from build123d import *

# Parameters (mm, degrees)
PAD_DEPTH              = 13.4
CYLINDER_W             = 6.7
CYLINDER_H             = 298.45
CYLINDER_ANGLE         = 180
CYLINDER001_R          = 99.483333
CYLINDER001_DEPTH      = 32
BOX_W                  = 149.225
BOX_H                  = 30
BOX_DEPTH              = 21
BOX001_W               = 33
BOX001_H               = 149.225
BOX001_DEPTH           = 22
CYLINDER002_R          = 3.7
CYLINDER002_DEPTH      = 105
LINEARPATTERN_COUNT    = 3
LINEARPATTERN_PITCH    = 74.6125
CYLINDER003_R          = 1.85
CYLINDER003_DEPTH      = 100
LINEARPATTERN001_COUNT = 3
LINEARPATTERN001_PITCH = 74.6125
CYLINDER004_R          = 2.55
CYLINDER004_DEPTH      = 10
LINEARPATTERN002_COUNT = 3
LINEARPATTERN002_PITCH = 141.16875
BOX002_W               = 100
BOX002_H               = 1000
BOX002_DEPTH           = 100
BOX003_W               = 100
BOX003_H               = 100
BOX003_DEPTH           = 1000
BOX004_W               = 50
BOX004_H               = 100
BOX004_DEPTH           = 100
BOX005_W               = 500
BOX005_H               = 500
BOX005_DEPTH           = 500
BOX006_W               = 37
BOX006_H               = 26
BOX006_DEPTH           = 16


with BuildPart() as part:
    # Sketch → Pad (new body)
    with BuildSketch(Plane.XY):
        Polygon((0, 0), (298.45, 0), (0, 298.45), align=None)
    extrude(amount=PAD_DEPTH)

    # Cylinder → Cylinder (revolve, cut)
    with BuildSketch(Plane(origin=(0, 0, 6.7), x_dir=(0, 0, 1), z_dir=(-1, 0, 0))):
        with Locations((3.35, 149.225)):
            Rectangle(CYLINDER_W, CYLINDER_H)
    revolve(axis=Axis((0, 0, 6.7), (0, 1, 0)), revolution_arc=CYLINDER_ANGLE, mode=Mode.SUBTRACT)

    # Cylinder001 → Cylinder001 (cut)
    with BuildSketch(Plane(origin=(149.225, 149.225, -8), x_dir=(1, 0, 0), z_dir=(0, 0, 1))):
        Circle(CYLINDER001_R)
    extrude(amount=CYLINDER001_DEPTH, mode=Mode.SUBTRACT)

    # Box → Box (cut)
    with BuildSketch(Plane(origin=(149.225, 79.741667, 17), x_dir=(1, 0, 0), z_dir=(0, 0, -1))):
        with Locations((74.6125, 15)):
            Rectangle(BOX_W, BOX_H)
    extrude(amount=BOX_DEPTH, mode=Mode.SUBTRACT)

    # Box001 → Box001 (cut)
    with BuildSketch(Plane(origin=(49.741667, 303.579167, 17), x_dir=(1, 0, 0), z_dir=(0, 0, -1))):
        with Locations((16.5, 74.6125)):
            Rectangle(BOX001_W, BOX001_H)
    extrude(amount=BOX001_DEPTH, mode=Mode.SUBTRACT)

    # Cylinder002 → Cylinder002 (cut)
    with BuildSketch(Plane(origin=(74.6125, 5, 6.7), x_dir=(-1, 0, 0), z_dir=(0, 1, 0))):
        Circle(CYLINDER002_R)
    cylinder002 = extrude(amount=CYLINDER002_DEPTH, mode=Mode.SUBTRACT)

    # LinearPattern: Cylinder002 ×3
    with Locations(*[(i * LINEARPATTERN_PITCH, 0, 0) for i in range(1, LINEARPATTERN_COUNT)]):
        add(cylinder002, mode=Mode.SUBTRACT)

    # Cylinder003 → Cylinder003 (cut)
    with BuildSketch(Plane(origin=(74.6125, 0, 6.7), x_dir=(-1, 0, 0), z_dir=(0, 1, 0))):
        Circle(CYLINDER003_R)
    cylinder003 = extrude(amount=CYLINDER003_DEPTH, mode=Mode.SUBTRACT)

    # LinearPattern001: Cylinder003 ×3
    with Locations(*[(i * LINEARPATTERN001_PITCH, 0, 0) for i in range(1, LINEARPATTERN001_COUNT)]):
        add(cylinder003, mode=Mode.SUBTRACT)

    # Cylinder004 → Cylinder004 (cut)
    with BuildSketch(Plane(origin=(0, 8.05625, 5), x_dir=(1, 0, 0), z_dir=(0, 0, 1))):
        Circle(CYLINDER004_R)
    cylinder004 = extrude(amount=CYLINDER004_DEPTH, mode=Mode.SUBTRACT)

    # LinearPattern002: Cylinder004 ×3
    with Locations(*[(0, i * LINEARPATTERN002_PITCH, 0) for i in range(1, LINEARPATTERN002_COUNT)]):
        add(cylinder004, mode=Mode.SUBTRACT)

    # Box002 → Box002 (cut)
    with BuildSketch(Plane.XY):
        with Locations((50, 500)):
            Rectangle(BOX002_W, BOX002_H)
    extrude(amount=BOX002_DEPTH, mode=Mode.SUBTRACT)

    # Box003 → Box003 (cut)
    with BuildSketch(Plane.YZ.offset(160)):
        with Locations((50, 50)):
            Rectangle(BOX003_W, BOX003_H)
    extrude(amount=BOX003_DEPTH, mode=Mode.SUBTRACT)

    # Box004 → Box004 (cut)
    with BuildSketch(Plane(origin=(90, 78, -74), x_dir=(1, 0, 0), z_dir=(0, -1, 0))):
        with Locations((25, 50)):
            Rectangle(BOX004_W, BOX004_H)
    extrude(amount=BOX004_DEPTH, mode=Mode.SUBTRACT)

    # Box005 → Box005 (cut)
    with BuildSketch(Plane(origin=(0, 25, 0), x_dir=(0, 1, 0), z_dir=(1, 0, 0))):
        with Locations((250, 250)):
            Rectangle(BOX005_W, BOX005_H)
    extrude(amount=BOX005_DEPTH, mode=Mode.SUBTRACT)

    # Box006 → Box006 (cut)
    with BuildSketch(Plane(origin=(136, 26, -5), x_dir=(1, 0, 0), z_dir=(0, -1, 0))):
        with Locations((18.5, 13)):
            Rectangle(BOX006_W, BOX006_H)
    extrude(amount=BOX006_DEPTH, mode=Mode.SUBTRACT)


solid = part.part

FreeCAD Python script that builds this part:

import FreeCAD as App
import Part
import Sketcher

V = App.Vector

doc = App.newDocument("Part")
params = doc.addObject("Spreadsheet::Sheet", "Params")
for row, (alias, value) in enumerate([
    ("sketch1_width", "298.45 mm"),
    ("pad1_length", "13.4 mm"),
    ("sketch2_height", "6.7 mm"),
    ("sketch2_width", "298.45 mm"),
    ("groove_angle", "180 deg"),
    ("pocket1_length", "32 mm"),
    ("sketch4_height", "30 mm"),
    ("pocket2_length", "21 mm"),
    ("sketch5_width", "33 mm"),
    ("pocket3_length", "22 mm"),
    ("sketch6_diameter", "7.4 mm"),
    ("pocket4_length", "105 mm"),
    ("linearpattern_pitch", "74.6125 mm"),
    ("sketch7_diameter", "3.7 mm"),
    ("pocket5_length", "100 mm"),
    ("linearpattern2_pitch", "74.6125 mm"),
    ("sketch8_diameter", "5.1 mm"),
    ("pocket6_length", "10 mm"),
    ("linearpattern3_pitch", "141.16875 mm"),
    ("sketch9_width", "100 mm"),
    ("sketch9_height", "1000 mm"),
    ("pocket7_length", "100 mm"),
    ("sketch10_width", "100 mm"),
    ("pocket8_length", "1000 mm"),
    ("sketch11_width", "50 mm"),
    ("sketch11_height", "100 mm"),
    ("pocket9_length", "100 mm"),
    ("sketch12_width", "500 mm"),
    ("pocket10_length", "500 mm"),
    ("sketch13_width", "37 mm"),
    ("sketch13_height", "26 mm"),
    ("pocket11_length", "16 mm"),
], start=1):
    params.set(f"A{row}", alias)
    params.set(f"B{row}", "=" + value)
    params.setAlias(f"B{row}", alias)

body = doc.addObject("PartDesign::Body", "Body")

sketch1 = body.newObject("Sketcher::SketchObject", "Sketch")
sketch1.AttachmentSupport = (doc.getObject("XY_Plane"), [""])
sketch1.MapMode = "FlatFace"
sketch1.addGeometry([
    Part.LineSegment(V(0, 0, 0), V(298, 0, 0)),
    Part.LineSegment(V(298, 0, 0), V(0, 298, 0)),
    Part.LineSegment(V(0, 298, 0), V(0, 0, 0)),
], False)
sketch1.addConstraint([
    Sketcher.Constraint("Coincident", 0, 2, 1, 1),
    Sketcher.Constraint("Coincident", 1, 2, 2, 1),
    Sketcher.Constraint("Coincident", 2, 2, 0, 1),
    Sketcher.Constraint("Horizontal", 0),
    Sketcher.Constraint("Vertical", 2),
    Sketcher.Constraint("Coincident", 2, 2, -1, 1),
    Sketcher.Constraint("Equal", 0, 2),
    Sketcher.Constraint("DistanceX", 0, 1, 0, 2, 298.45),
])
sketch1.setExpression("Constraints[7]", "Params.sketch1_width")
pad1 = body.newObject("PartDesign::Pad", "Pad")
pad1.Profile = sketch1
pad1.setExpression("Length", "Params.pad1_length")

sketch2 = body.newObject("Sketcher::SketchObject", "Sketch001")
sketch2.AttachmentSupport = (doc.getObject("YZ_Plane"), [""])
sketch2.MapMode = "FlatFace"
sketch2.addGeometry([
    Part.LineSegment(V(298, 7, 0), V(0, 7, 0)),
    Part.LineSegment(V(0, 7, 0), V(0, 13, 0)),
    Part.LineSegment(V(0, 13, 0), V(298, 13, 0)),
    Part.LineSegment(V(298, 13, 0), V(298, 7, 0)),
], False)
sketch2.addGeometry(Part.LineSegment(V(0, 7, 0), V(298, 7, 0)), True)
sketch2.addConstraint([
    Sketcher.Constraint("Coincident", 0, 2, 1, 1),
    Sketcher.Constraint("Coincident", 1, 2, 2, 1),
    Sketcher.Constraint("Coincident", 2, 2, 3, 1),
    Sketcher.Constraint("Coincident", 3, 2, 0, 1),
    Sketcher.Constraint("Horizontal", 0),
    Sketcher.Constraint("Vertical", 1),
    Sketcher.Constraint("Horizontal", 2),
    Sketcher.Constraint("Vertical", 3),
    Sketcher.Constraint("Horizontal", 4),
    Sketcher.Constraint("Coincident", 4, 1, 0, 2),
    Sketcher.Constraint("PointOnObject", 0, 2, -2),
    Sketcher.Constraint("Vertical", 2, 2, 4, 2),
    Sketcher.Constraint("DistanceY", 1, 1, 1, 2, 6.7),
    Sketcher.Constraint("DistanceX", 0, 2, 0, 1, 298.45),
    Sketcher.Constraint("DistanceY", -1, 1, 0, 2, 6.7),
])
sketch2.setExpression("Constraints[12]", "Params.sketch2_height")
sketch2.setExpression("Constraints[13]", "Params.sketch2_width")
groove = body.newObject("PartDesign::Groove", "Groove")
groove.Profile = sketch2
groove.ReferenceAxis = (sketch2, ["Axis0"])
groove.setExpression("Angle", "Params.groove_angle")

sketch3 = body.newObject("Sketcher::SketchObject", "Sketch002")
sketch3.AttachmentSupport = (doc.getObject("XY_Plane"), [""])
sketch3.MapMode = "FlatFace"
sketch3.AttachmentOffset = App.Placement(V(0, 0, -8), App.Rotation())
sketch3.addGeometry(Part.Circle(V(149, 149, 0), V(0, 0, 1), 99), False)
sketch3.addConstraint([
    Sketcher.Constraint("Diameter", 0, 198.966666),
    Sketcher.Constraint("DistanceX", -1, 1, 0, 3, 149.225),
    Sketcher.Constraint("DistanceY", -1, 1, 0, 3, 149.225),
])
pocket1 = body.newObject("PartDesign::Pocket", "Pocket")
pocket1.Profile = sketch3
pocket1.setExpression("Length", "Params.pocket1_length")
pocket1.Reversed = True

sketch4 = body.newObject("Sketcher::SketchObject", "Sketch003")
sketch4.AttachmentSupport = (doc.getObject("XY_Plane"), [""])
sketch4.MapMode = "FlatFace"
sketch4.AttachmentOffset = App.Placement(V(0, 0, 17), App.Rotation())
sketch4.addGeometry([
    Part.LineSegment(V(149, 50, 0), V(149, 80, 0)),
    Part.LineSegment(V(149, 80, 0), V(298, 80, 0)),
    Part.LineSegment(V(298, 80, 0), V(298, 50, 0)),
    Part.LineSegment(V(298, 50, 0), V(149, 50, 0)),
], False)
sketch4.addConstraint([
    Sketcher.Constraint("Coincident", 0, 2, 1, 1),
    Sketcher.Constraint("Coincident", 1, 2, 2, 1),
    Sketcher.Constraint("Coincident", 2, 2, 3, 1),
    Sketcher.Constraint("Coincident", 3, 2, 0, 1),
    Sketcher.Constraint("Vertical", 0),
    Sketcher.Constraint("Horizontal", 1),
    Sketcher.Constraint("Vertical", 2),
    Sketcher.Constraint("Horizontal", 3),
    Sketcher.Constraint("DistanceY", 0, 1, 0, 2, 30.0),
    Sketcher.Constraint("DistanceX", 1, 1, 1, 2, 149.225),
    Sketcher.Constraint("DistanceX", -1, 1, 1, 2, 298.45),
    Sketcher.Constraint("DistanceY", -1, 1, 0, 2, 79.741667),
])
sketch4.setExpression("Constraints[8]", "Params.sketch4_height")
pocket2 = body.newObject("PartDesign::Pocket", "Pocket001")
pocket2.Profile = sketch4
pocket2.setExpression("Length", "Params.pocket2_length")

sketch5 = body.newObject("Sketcher::SketchObject", "Sketch004")
sketch5.AttachmentSupport = (doc.getObject("XY_Plane"), [""])
sketch5.MapMode = "FlatFace"
sketch5.AttachmentOffset = App.Placement(V(0, 0, 17), App.Rotation())
sketch5.addGeometry([
    Part.LineSegment(V(50, 154, 0), V(50, 304, 0)),
    Part.LineSegment(V(50, 304, 0), V(83, 304, 0)),
    Part.LineSegment(V(83, 304, 0), V(83, 154, 0)),
    Part.LineSegment(V(83, 154, 0), V(50, 154, 0)),
], False)
sketch5.addConstraint([
    Sketcher.Constraint("Coincident", 0, 2, 1, 1),
    Sketcher.Constraint("Coincident", 1, 2, 2, 1),
    Sketcher.Constraint("Coincident", 2, 2, 3, 1),
    Sketcher.Constraint("Coincident", 3, 2, 0, 1),
    Sketcher.Constraint("Vertical", 0),
    Sketcher.Constraint("Horizontal", 1),
    Sketcher.Constraint("Vertical", 2),
    Sketcher.Constraint("Horizontal", 3),
    Sketcher.Constraint("DistanceX", 1, 1, 1, 2, 33.0),
    Sketcher.Constraint("DistanceY", 0, 1, 0, 2, 149.225),
    Sketcher.Constraint("DistanceX", -1, 1, 0, 2, 49.741667),
    Sketcher.Constraint("DistanceY", -1, 1, 0, 2, 303.579167),
])
sketch5.setExpression("Constraints[8]", "Params.sketch5_width")
pocket3 = body.newObject("PartDesign::Pocket", "Pocket002")
pocket3.Profile = sketch5
pocket3.setExpression("Length", "Params.pocket3_length")

sketch6 = body.newObject("Sketcher::SketchObject", "Sketch005")
sketch6.AttachmentSupport = (doc.getObject("XZ_Plane"), [""])
sketch6.MapMode = "FlatFace"
sketch6.AttachmentOffset = App.Placement(V(0, 0, -5), App.Rotation())
sketch6.addGeometry(Part.Circle(V(74.6, 6.7, 0), V(0, 0, 1), 3.7), False)
sketch6.addConstraint([
    Sketcher.Constraint("Diameter", 0, 7.4),
    Sketcher.Constraint("DistanceY", -1, 1, 0, 3, 6.7),
    Sketcher.Constraint("DistanceX", -1, 1, 0, 3, 74.6125),
])
sketch6.setExpression("Constraints[0]", "Params.sketch6_diameter")
pocket4 = body.newObject("PartDesign::Pocket", "Pocket003")
pocket4.Profile = sketch6
pocket4.setExpression("Length", "Params.pocket4_length")
doc.recompute()

linearpattern = body.newObject("PartDesign::LinearPattern", "LinearPattern")
linearpattern.Originals = [pocket4]
linearpattern.Direction = (doc.getObject("X_Axis"), [""])
linearpattern.Mode = "offset"
linearpattern.setExpression("Offset", "Params.linearpattern_pitch")
linearpattern.Occurrences = 3
body.Tip = linearpattern

sketch7 = body.newObject("Sketcher::SketchObject", "Sketch006")
sketch7.AttachmentSupport = (doc.getObject("XZ_Plane"), [""])
sketch7.MapMode = "FlatFace"
sketch7.addGeometry(Part.Circle(V(74.6, 6.7, 0), V(0, 0, 1), 1.9), False)
sketch7.addConstraint([
    Sketcher.Constraint("Diameter", 0, 3.7),
    Sketcher.Constraint("DistanceY", -1, 1, 0, 3, 6.7),
    Sketcher.Constraint("DistanceX", -1, 1, 0, 3, 74.6125),
])
sketch7.setExpression("Constraints[0]", "Params.sketch7_diameter")
pocket5 = body.newObject("PartDesign::Pocket", "Pocket004")
pocket5.Profile = sketch7
pocket5.setExpression("Length", "Params.pocket5_length")
doc.recompute()

linearpattern2 = body.newObject("PartDesign::LinearPattern", "LinearPattern001")
linearpattern2.Originals = [pocket5]
linearpattern2.Direction = (doc.getObject("X_Axis"), [""])
linearpattern2.Mode = "offset"
linearpattern2.setExpression("Offset", "Params.linearpattern2_pitch")
linearpattern2.Occurrences = 3
body.Tip = linearpattern2

sketch8 = body.newObject("Sketcher::SketchObject", "Sketch007")
sketch8.AttachmentSupport = (doc.getObject("XY_Plane"), [""])
sketch8.MapMode = "FlatFace"
sketch8.AttachmentOffset = App.Placement(V(0, 0, 5), App.Rotation())
sketch8.addGeometry(Part.Circle(V(0, 8.1, 0), V(0, 0, 1), 2.5), False)
sketch8.addConstraint([
    Sketcher.Constraint("PointOnObject", 0, 3, -2),
    Sketcher.Constraint("Diameter", 0, 5.1),
    Sketcher.Constraint("DistanceY", -1, 1, 0, 3, 8.05625),
])
sketch8.setExpression("Constraints[1]", "Params.sketch8_diameter")
pocket6 = body.newObject("PartDesign::Pocket", "Pocket005")
pocket6.Profile = sketch8
pocket6.setExpression("Length", "Params.pocket6_length")
pocket6.Reversed = True
doc.recompute()

linearpattern3 = body.newObject("PartDesign::LinearPattern", "LinearPattern002")
linearpattern3.Originals = [pocket6]
linearpattern3.Direction = (doc.getObject("Y_Axis"), [""])
linearpattern3.Mode = "offset"
linearpattern3.setExpression("Offset", "Params.linearpattern3_pitch")
linearpattern3.Occurrences = 3
body.Tip = linearpattern3

sketch9 = body.newObject("Sketcher::SketchObject", "Sketch008")
sketch9.AttachmentSupport = (doc.getObject("XY_Plane"), [""])
sketch9.MapMode = "FlatFace"
sketch9.addGeometry([
    Part.LineSegment(V(0, 1000, 0), V(0, 0, 0)),
    Part.LineSegment(V(0, 0, 0), V(100, 0, 0)),
    Part.LineSegment(V(100, 0, 0), V(100, 1000, 0)),
    Part.LineSegment(V(100, 1000, 0), V(0, 1000, 0)),
], False)
sketch9.addConstraint([
    Sketcher.Constraint("Coincident", 0, 2, 1, 1),
    Sketcher.Constraint("Coincident", 1, 2, 2, 1),
    Sketcher.Constraint("Coincident", 2, 2, 3, 1),
    Sketcher.Constraint("Coincident", 3, 2, 0, 1),
    Sketcher.Constraint("Vertical", 0),
    Sketcher.Constraint("Horizontal", 1),
    Sketcher.Constraint("Vertical", 2),
    Sketcher.Constraint("Horizontal", 3),
    Sketcher.Constraint("Coincident", 0, 2, -1, 1),
    Sketcher.Constraint("DistanceX", 1, 1, 1, 2, 100.0),
    Sketcher.Constraint("DistanceY", 0, 2, 0, 1, 1000.0),
])
sketch9.setExpression("Constraints[9]", "Params.sketch9_width")
sketch9.setExpression("Constraints[10]", "Params.sketch9_height")
pocket7 = body.newObject("PartDesign::Pocket", "Pocket006")
pocket7.Profile = sketch9
pocket7.setExpression("Length", "Params.pocket7_length")
pocket7.Reversed = True

sketch10 = body.newObject("Sketcher::SketchObject", "Sketch009")
sketch10.AttachmentSupport = (doc.getObject("YZ_Plane"), [""])
sketch10.MapMode = "FlatFace"
sketch10.AttachmentOffset = App.Placement(V(0, 0, 160), App.Rotation())
sketch10.addGeometry([
    Part.LineSegment(V(0, 100, 0), V(0, 0, 0)),
    Part.LineSegment(V(0, 0, 0), V(100, 0, 0)),
    Part.LineSegment(V(100, 0, 0), V(100, 100, 0)),
    Part.LineSegment(V(100, 100, 0), V(0, 100, 0)),
], False)
sketch10.addConstraint([
    Sketcher.Constraint("Coincident", 0, 2, 1, 1),
    Sketcher.Constraint("Coincident", 1, 2, 2, 1),
    Sketcher.Constraint("Coincident", 2, 2, 3, 1),
    Sketcher.Constraint("Coincident", 3, 2, 0, 1),
    Sketcher.Constraint("Vertical", 0),
    Sketcher.Constraint("Horizontal", 1),
    Sketcher.Constraint("Vertical", 2),
    Sketcher.Constraint("Horizontal", 3),
    Sketcher.Constraint("Coincident", 0, 2, -1, 1),
    Sketcher.Constraint("Equal", 3, 0),
    Sketcher.Constraint("DistanceX", 1, 1, 1, 2, 100.0),
])
sketch10.setExpression("Constraints[10]", "Params.sketch10_width")
pocket8 = body.newObject("PartDesign::Pocket", "Pocket007")
pocket8.Profile = sketch10
pocket8.setExpression("Length", "Params.pocket8_length")
pocket8.Reversed = True

sketch11 = body.newObject("Sketcher::SketchObject", "Sketch010")
sketch11.AttachmentSupport = (doc.getObject("XZ_Plane"), [""])
sketch11.MapMode = "FlatFace"
sketch11.AttachmentOffset = App.Placement(V(0, 0, -78), App.Rotation())
sketch11.addGeometry([
    Part.LineSegment(V(90, 26, 0), V(90, -74, 0)),
    Part.LineSegment(V(90, -74, 0), V(140, -74, 0)),
    Part.LineSegment(V(140, -74, 0), V(140, 26, 0)),
    Part.LineSegment(V(140, 26, 0), V(90, 26, 0)),
], False)
sketch11.addConstraint([
    Sketcher.Constraint("Coincident", 0, 2, 1, 1),
    Sketcher.Constraint("Coincident", 1, 2, 2, 1),
    Sketcher.Constraint("Coincident", 2, 2, 3, 1),
    Sketcher.Constraint("Coincident", 3, 2, 0, 1),
    Sketcher.Constraint("Vertical", 0),
    Sketcher.Constraint("Horizontal", 1),
    Sketcher.Constraint("Vertical", 2),
    Sketcher.Constraint("Horizontal", 3),
    Sketcher.Constraint("DistanceX", 1, 1, 1, 2, 50.0),
    Sketcher.Constraint("DistanceY", 0, 2, 0, 1, 100.0),
    Sketcher.Constraint("DistanceX", -1, 1, 0, 2, 90.0),
    Sketcher.Constraint("DistanceY", 0, 2, -1, 1, 74.0),
])
sketch11.setExpression("Constraints[8]", "Params.sketch11_width")
sketch11.setExpression("Constraints[9]", "Params.sketch11_height")
pocket9 = body.newObject("PartDesign::Pocket", "Pocket008")
pocket9.Profile = sketch11
pocket9.setExpression("Length", "Params.pocket9_length")
pocket9.Reversed = True

sketch12 = body.newObject("Sketcher::SketchObject", "Sketch011")
sketch12.AttachmentSupport = (doc.getObject("YZ_Plane"), [""])
sketch12.MapMode = "FlatFace"
sketch12.addGeometry([
    Part.LineSegment(V(25, 500, 0), V(25, 0, 0)),
    Part.LineSegment(V(25, 0, 0), V(525, 0, 0)),
    Part.LineSegment(V(525, 0, 0), V(525, 500, 0)),
    Part.LineSegment(V(525, 500, 0), V(25, 500, 0)),
], False)
sketch12.addConstraint([
    Sketcher.Constraint("Coincident", 0, 2, 1, 1),
    Sketcher.Constraint("Coincident", 1, 2, 2, 1),
    Sketcher.Constraint("Coincident", 2, 2, 3, 1),
    Sketcher.Constraint("Coincident", 3, 2, 0, 1),
    Sketcher.Constraint("Vertical", 0),
    Sketcher.Constraint("Horizontal", 1),
    Sketcher.Constraint("Vertical", 2),
    Sketcher.Constraint("Horizontal", 3),
    Sketcher.Constraint("PointOnObject", 0, 2, -1),
    Sketcher.Constraint("Equal", 3, 0),
    Sketcher.Constraint("DistanceX", 1, 1, 1, 2, 500.0),
    Sketcher.Constraint("DistanceX", -1, 1, 0, 2, 25.0),
])
sketch12.setExpression("Constraints[10]", "Params.sketch12_width")
pocket10 = body.newObject("PartDesign::Pocket", "Pocket009")
pocket10.Profile = sketch12
pocket10.setExpression("Length", "Params.pocket10_length")
pocket10.Reversed = True

sketch13 = body.newObject("Sketcher::SketchObject", "Sketch012")
sketch13.AttachmentSupport = (doc.getObject("XZ_Plane"), [""])
sketch13.MapMode = "FlatFace"
sketch13.AttachmentOffset = App.Placement(V(0, 0, -26), App.Rotation())
sketch13.addGeometry([
    Part.LineSegment(V(136, 21, 0), V(136, -5, 0)),
    Part.LineSegment(V(136, -5, 0), V(173, -5, 0)),
    Part.LineSegment(V(173, -5, 0), V(173, 21, 0)),
    Part.LineSegment(V(173, 21, 0), V(136, 21, 0)),
], False)
sketch13.addConstraint([
    Sketcher.Constraint("Coincident", 0, 2, 1, 1),
    Sketcher.Constraint("Coincident", 1, 2, 2, 1),
    Sketcher.Constraint("Coincident", 2, 2, 3, 1),
    Sketcher.Constraint("Coincident", 3, 2, 0, 1),
    Sketcher.Constraint("Vertical", 0),
    Sketcher.Constraint("Horizontal", 1),
    Sketcher.Constraint("Vertical", 2),
    Sketcher.Constraint("Horizontal", 3),
    Sketcher.Constraint("DistanceX", 1, 1, 1, 2, 37.0),
    Sketcher.Constraint("DistanceY", 0, 2, 0, 1, 26.0),
    Sketcher.Constraint("DistanceX", -1, 1, 0, 2, 136.0),
    Sketcher.Constraint("DistanceY", 0, 2, -1, 1, 5.0),
])
sketch13.setExpression("Constraints[8]", "Params.sketch13_width")
sketch13.setExpression("Constraints[9]", "Params.sketch13_height")
pocket11 = body.newObject("PartDesign::Pocket", "Pocket010")
pocket11.Profile = sketch13
pocket11.setExpression("Length", "Params.pocket11_length")
pocket11.Reversed = True

doc.recompute()
